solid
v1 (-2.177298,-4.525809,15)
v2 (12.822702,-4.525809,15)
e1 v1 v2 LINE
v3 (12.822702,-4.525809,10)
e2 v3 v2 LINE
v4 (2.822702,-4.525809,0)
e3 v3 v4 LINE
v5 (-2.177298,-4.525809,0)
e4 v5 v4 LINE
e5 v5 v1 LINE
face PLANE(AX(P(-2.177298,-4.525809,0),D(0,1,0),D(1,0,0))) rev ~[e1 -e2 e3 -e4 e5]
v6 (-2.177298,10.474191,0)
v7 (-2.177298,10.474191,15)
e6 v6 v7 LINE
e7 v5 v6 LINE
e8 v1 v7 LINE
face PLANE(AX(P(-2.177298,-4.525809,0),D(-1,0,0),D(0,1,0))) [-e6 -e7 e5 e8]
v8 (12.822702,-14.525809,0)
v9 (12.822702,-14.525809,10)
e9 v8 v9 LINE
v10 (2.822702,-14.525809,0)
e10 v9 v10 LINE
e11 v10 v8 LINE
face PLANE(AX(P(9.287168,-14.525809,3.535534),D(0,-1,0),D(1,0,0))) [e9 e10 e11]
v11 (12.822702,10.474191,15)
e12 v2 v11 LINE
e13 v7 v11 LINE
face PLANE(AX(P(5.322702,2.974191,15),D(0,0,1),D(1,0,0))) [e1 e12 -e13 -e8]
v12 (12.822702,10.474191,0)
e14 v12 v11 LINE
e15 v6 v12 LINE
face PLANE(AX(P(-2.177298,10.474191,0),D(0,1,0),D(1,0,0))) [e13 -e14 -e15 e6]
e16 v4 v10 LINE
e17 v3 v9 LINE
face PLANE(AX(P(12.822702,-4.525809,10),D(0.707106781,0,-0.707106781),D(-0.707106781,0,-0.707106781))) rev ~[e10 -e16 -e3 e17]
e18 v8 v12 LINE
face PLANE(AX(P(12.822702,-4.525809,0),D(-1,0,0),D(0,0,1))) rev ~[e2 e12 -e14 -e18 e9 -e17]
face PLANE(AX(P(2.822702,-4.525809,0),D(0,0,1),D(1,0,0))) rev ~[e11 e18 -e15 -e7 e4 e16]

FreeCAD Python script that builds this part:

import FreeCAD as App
import Part
import Sketcher
Q = App.Units.Quantity

doc = App.newDocument("Part")
body = doc.addObject("PartDesign::Body", "Body")

sketch1 = body.newObject("Sketcher::SketchObject", "Sketch")
sketch1.AttachmentSupport = (doc.getObject("XY_Plane"), [""])
sketch1.MapMode = "FlatFace"
sketch1.addGeometry(Part.LineSegment(App.Vector(-2, 10, 0), App.Vector(-2, -5, 0)), False)
sketch1.addGeometry(Part.LineSegment(App.Vector(-2, -5, 0), App.Vector(13, -5, 0)), False)
sketch1.addGeometry(Part.LineSegment(App.Vector(13, -5, 0), App.Vector(13, 10, 0)), False)
sketch1.addGeometry(Part.LineSegment(App.Vector(13, 10, 0), App.Vector(-2, 10, 0)), False)
sketch1.addConstraint(Sketcher.Constraint("Coincident", 0, 2, 1, 1))
sketch1.addConstraint(Sketcher.Constraint("Coincident", 1, 2, 2, 1))
sketch1.addConstraint(Sketcher.Constraint("Coincident", 2, 2, 3, 1))
sketch1.addConstraint(Sketcher.Constraint("Coincident", 3, 2, 0, 1))
sketch1.addConstraint(Sketcher.Constraint("Vertical", 0))
sketch1.addConstraint(Sketcher.Constraint("Horizontal", 1))
sketch1.addConstraint(Sketcher.Constraint("Vertical", 2))
sketch1.addConstraint(Sketcher.Constraint("Horizontal", 3))
sketch1.addConstraint(Sketcher.Constraint("Equal", 3, 0))
sketch1.addConstraint(Sketcher.Constraint("DistanceX", 1, 1, 1, 2, Q("15 mm")))
sketch1.addConstraint(Sketcher.Constraint("DistanceX", 0, 2, -1, 1, Q("2.177298 mm")))
sketch1.addConstraint(Sketcher.Constraint("DistanceY", 0, 2, -1, 1, Q("4.525809 mm")))
pad1 = body.newObject("PartDesign::Pad", "Pad")
pad1.Profile = sketch1
pad1.Length = 15

sketch2 = body.newObject("Sketcher::SketchObject", "Sketch001")
sketch2.AttachmentSupport = (doc.getObject("XZ_Plane"), [""])
sketch2.MapMode = "FlatFace"
sketch2.AttachmentOffset = App.Placement(App.Vector(0, 0, 4.525809), App.Rotation())
sketch2.addGeometry(Part.LineSegment(App.Vector(13, 0, 0), App.Vector(13, 10, 0)), False)
sketch2.addGeometry(Part.LineSegment(App.Vector(13, 10, 0), App.Vector(3, 0, 0)), False)
sketch2.addGeometry(Part.LineSegment(App.Vector(3, 0, 0), App.Vector(13, 0, 0)), False)
sketch2.addConstraint(Sketcher.Constraint("Coincident", 0, 2, 1, 1))
sketch2.addConstraint(Sketcher.Constraint("Coincident", 1, 2, 2, 1))
sketch2.addConstraint(Sketcher.Constraint("Coincident", 2, 2, 0, 1))
sketch2.addConstraint(Sketcher.Constraint("Vertical", 0))
sketch2.addConstraint(Sketcher.Constraint("Horizontal", 2))
sketch2.addConstraint(Sketcher.Constraint("PointOnObject", 1, 2, -1))
sketch2.addConstraint(Sketcher.Constraint("Equal", 2, 0))
sketch2.addConstraint(Sketcher.Constraint("DistanceX", 2, 1, 2, 2, Q("10 mm")))
sketch2.addConstraint(Sketcher.Constraint("DistanceX", -1, 1, 1, 2, Q("2.822702 mm")))
pad2 = body.newObject("PartDesign::Pad", "Pad001")
pad2.Profile = sketch2
pad2.Length = 10

doc.recompute()
